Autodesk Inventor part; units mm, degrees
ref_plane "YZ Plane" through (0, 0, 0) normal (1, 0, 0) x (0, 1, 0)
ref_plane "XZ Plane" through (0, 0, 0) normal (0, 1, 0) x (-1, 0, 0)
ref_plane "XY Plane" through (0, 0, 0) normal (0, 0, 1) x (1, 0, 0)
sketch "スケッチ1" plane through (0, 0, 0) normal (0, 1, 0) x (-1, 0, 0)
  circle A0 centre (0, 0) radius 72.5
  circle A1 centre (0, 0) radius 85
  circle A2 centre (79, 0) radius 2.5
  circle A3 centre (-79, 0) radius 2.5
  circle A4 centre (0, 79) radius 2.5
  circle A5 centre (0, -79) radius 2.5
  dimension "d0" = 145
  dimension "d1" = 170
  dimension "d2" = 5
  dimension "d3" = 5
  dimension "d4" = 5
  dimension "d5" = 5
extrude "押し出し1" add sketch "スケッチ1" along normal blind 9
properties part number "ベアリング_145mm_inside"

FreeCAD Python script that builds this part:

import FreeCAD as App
import Part
import Sketcher
from FreeCAD import Vector

doc = App.newDocument("Part")
body = doc.addObject("PartDesign::Body", "Body")

sketch1 = doc.addObject("Sketcher::SketchObject", "Sketch")
body.addObject(sketch1)
sketch1.AttachmentSupport = (doc.XZ_Plane, [""])
sketch1.MapMode = "FlatFace"
sketch1.addGeometry([
    Part.Circle(Vector(0, 0, 0), Vector(0, 0, 1), 85),
    Part.Circle(Vector(0, -79, 0), Vector(0, 0, 1), 2.5),
    Part.Circle(Vector(79, 0, 0), Vector(0, 0, 1), 2.5),
    Part.Circle(Vector(0, 0, 0), Vector(0, 0, 1), 72.5),
    Part.Circle(Vector(-79, 0, 0), Vector(0, 0, 1), 2.5),
    Part.Circle(Vector(0, 79, 0), Vector(0, 0, 1), 2.5),
], False)
sketch1.addConstraint([
    Sketcher.Constraint("Coincident", 0, 3, -1, 1),
    Sketcher.Constraint("Coincident", 3, 3, -1, 1),
    Sketcher.Constraint("Equal", 1, 2),
    Sketcher.Constraint("Equal", 2, 4),
    Sketcher.Constraint("Equal", 4, 5),
    Sketcher.Constraint("Symmetric", 2, 3, 4, 3, -1, 1),
    Sketcher.Constraint("Symmetric", 1, 3, 5, 3, -1, 1),
    Sketcher.Constraint("PointOnObject", 1, 3, -2),
    Sketcher.Constraint("PointOnObject", 2, 3, -1),
    Sketcher.Constraint("Diameter", 0, 170.0),
    Sketcher.Constraint("Diameter", 1, 5.0),
    Sketcher.Constraint("Diameter", 3, 145.0),
    Sketcher.Constraint("DistanceY", 1, 3, -1, 1, 79.0),
    Sketcher.Constraint("DistanceX", -1, 1, 2, 3, 79.0),
])
pad1 = doc.addObject("PartDesign::Pad", "Pad")
body.addObject(pad1)
pad1.Profile = sketch1
pad1.Length = 9
pad1.Reversed = True

doc.recompute()
